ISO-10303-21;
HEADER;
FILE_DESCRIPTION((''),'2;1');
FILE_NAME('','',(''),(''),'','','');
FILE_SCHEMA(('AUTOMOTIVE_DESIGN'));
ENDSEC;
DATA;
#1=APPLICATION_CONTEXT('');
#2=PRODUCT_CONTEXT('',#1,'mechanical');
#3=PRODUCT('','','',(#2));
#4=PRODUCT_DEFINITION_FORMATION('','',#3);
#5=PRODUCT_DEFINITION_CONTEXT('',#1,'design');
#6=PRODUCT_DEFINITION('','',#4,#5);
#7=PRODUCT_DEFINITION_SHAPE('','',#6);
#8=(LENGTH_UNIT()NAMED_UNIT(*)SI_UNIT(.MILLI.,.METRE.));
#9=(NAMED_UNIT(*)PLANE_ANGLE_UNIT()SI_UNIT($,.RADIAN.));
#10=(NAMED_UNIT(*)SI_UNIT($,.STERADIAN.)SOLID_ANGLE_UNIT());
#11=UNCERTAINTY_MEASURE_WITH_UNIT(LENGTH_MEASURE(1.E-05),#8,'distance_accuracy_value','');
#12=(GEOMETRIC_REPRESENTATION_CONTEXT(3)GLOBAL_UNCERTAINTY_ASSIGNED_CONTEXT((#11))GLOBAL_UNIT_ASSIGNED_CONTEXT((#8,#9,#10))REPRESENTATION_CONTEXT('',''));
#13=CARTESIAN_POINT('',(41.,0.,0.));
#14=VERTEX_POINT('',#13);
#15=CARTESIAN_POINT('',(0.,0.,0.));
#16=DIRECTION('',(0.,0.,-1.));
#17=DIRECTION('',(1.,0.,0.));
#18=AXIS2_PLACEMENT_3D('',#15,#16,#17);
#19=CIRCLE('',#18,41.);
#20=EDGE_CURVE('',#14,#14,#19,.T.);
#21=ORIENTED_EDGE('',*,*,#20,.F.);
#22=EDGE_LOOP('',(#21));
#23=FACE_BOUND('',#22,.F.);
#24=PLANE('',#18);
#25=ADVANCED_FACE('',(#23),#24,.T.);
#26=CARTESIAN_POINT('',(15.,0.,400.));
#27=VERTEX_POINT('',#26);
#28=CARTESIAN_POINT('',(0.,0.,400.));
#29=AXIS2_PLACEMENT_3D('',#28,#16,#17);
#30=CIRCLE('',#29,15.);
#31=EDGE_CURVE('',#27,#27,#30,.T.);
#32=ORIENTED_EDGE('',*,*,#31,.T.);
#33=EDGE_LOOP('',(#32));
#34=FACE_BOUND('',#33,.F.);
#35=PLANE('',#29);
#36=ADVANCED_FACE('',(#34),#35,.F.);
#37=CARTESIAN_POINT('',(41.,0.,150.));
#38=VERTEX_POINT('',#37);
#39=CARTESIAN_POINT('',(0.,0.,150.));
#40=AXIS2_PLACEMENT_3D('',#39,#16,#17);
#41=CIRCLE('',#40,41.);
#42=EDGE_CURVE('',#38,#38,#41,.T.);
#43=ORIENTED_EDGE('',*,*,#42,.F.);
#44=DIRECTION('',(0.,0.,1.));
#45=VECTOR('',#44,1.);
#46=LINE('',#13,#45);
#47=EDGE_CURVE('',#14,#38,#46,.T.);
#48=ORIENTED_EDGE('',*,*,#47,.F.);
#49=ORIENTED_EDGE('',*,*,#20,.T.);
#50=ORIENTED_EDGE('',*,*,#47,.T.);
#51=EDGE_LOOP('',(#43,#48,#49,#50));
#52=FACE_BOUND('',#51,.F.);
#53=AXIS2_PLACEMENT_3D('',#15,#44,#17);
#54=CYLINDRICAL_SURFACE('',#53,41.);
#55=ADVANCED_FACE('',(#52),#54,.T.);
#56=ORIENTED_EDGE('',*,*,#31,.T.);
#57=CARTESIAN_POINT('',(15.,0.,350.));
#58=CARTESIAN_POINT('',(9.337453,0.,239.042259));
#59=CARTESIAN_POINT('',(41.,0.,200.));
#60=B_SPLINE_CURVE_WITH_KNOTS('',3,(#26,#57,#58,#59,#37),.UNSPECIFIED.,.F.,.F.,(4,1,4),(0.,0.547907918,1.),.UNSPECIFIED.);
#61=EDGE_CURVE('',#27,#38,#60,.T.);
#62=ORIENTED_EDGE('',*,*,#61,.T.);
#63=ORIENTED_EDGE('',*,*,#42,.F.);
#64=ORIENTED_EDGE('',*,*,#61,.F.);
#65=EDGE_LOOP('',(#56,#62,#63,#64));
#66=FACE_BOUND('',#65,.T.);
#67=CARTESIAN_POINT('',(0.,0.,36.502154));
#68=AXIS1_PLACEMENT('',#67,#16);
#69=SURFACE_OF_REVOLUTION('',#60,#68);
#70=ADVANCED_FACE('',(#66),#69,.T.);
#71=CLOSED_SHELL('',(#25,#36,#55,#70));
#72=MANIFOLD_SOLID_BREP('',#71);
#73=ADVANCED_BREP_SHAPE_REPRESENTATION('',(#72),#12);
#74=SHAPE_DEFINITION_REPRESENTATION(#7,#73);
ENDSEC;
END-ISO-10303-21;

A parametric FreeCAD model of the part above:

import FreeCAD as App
import Part
import Sketcher
from FreeCAD import Vector

doc = App.newDocument("Part")
params = doc.addObject("Spreadsheet::Sheet", "Params")
for row, (alias, value) in enumerate([
    ("revolution_angle", "360 deg"),
], start=1):
    params.set(f"A{row}", alias)
    params.set(f"B{row}", "=" + value)
    params.setAlias(f"B{row}", alias)

body = doc.addObject("PartDesign::Body", "Body")

sketch1 = body.newObject("Sketcher::SketchObject", "Sketch")
sketch1.AttachmentSupport = (doc.getObject("XZ_Plane"), [""])
sketch1.MapMode = "FlatFace"
sketch1.addGeometry([
    Part.LineSegment(Vector(0, 0, 0), Vector(41, 0, 0)),
    Part.LineSegment(Vector(41, 0, 0), Vector(41, 150, 0)),
    Part.BSplineCurve([Vector(15, 400, 0), Vector(15, 350, 0), Vector(9.337453, 239.042259, 0), Vector(41, 200, 0), Vector(41, 150, 0)], [4, 1, 4], [0, 0.547907918, 1], False, 3, [1, 1, 1, 1, 1], False),
    Part.LineSegment(Vector(15, 400, 0), Vector(0, 400, 0)),
    Part.LineSegment(Vector(0, 400, 0), Vector(0, 0, 0)),
], False)
sketch1.addConstraint([
    Sketcher.Constraint("Block", 2),
    Sketcher.Constraint("Coincident", 0, 2, 1, 1),
    Sketcher.Constraint("Coincident", 1, 2, 2, 2),
    Sketcher.Constraint("Coincident", 2, 1, 3, 1),
    Sketcher.Constraint("Coincident", 3, 2, 4, 1),
    Sketcher.Constraint("Coincident", 4, 2, 0, 1),
    Sketcher.Constraint("Horizontal", 0),
    Sketcher.Constraint("Vertical", 1),
    Sketcher.Constraint("Horizontal", 3),
    Sketcher.Constraint("Vertical", 4),
    Sketcher.Constraint("Coincident", 4, 2, -1, 1),
])
revolution = body.newObject("PartDesign::Revolution", "Revolution")
revolution.Profile = sketch1
revolution.ReferenceAxis = (sketch1, ["V_Axis"])
revolution.setExpression("Angle", "Params.revolution_angle")

doc.recompute()
